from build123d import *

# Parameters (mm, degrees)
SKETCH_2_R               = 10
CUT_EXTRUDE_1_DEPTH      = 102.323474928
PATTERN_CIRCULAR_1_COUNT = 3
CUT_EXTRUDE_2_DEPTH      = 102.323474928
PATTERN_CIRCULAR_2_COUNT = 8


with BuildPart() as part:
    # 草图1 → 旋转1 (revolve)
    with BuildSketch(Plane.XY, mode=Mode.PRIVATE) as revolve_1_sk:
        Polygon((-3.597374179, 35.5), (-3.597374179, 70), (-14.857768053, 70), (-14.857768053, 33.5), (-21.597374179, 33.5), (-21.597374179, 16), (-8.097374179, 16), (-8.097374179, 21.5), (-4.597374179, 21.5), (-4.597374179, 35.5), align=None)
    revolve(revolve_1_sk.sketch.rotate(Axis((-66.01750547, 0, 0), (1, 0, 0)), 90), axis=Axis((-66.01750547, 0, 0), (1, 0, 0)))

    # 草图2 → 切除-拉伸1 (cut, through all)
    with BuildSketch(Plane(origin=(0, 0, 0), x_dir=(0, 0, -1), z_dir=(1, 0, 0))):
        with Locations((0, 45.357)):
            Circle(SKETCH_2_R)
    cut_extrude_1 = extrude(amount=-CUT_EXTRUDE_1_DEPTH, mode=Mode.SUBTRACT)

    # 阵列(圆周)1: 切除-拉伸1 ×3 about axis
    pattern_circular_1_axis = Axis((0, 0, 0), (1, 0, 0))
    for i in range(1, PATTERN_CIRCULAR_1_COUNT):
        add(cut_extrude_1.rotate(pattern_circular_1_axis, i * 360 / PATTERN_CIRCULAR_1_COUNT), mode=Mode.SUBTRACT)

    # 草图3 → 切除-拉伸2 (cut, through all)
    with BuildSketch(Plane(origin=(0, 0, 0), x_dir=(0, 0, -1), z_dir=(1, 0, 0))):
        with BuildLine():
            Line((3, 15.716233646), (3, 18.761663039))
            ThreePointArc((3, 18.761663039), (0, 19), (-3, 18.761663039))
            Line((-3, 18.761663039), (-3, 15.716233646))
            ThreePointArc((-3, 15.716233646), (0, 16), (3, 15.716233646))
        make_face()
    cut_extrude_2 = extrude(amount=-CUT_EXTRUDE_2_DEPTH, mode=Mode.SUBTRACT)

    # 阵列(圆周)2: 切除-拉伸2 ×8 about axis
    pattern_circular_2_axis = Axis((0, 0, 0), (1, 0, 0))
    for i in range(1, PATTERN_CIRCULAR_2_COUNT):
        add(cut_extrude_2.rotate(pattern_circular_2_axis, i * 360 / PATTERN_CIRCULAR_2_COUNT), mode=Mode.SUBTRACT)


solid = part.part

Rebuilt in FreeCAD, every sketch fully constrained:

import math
import FreeCAD as App
import Part
import Sketcher
from FreeCAD import Vector

doc = App.newDocument("Part")
body = doc.addObject("PartDesign::Body", "Body")

sketch1 = body.newObject("Sketcher::SketchObject", "Sketch")
sketch1.AttachmentSupport = (doc.getObject("XY_Plane"), [""])
sketch1.MapMode = "FlatFace"
sketch1.addGeometry(Part.LineSegment(Vector(-3.6, 35.5, 0), Vector(-3.6, 70, 0)), False)
sketch1.addGeometry(Part.LineSegment(Vector(-3.6, 70, 0), Vector(-14.9, 70, 0)), False)
sketch1.addGeometry(Part.LineSegment(Vector(-14.9, 70, 0), Vector(-14.9, 33.5, 0)), False)
sketch1.addGeometry(Part.LineSegment(Vector(-14.9, 33.5, 0), Vector(-21.6, 33.5, 0)), False)
sketch1.addGeometry(Part.LineSegment(Vector(-21.6, 33.5, 0), Vector(-21.6, 16, 0)), False)
sketch1.addGeometry(Part.LineSegment(Vector(-21.6, 16, 0), Vector(-8.1, 16, 0)), False)
sketch1.addGeometry(Part.LineSegment(Vector(-8.1, 16, 0), Vector(-8.1, 21.5, 0)), False)
sketch1.addGeometry(Part.LineSegment(Vector(-8.1, 21.5, 0), Vector(-4.6, 21.5, 0)), False)
sketch1.addGeometry(Part.LineSegment(Vector(-4.6, 21.5, 0), Vector(-4.6, 35.5, 0)), False)
sketch1.addGeometry(Part.LineSegment(Vector(-4.6, 35.5, 0), Vector(-3.6, 35.5, 0)), False)
sketch1.addConstraint(Sketcher.Constraint("Coincident", 0, 2, 1, 1))
sketch1.addConstraint(Sketcher.Constraint("Coincident", 1, 2, 2, 1))
sketch1.addConstraint(Sketcher.Constraint("Coincident", 2, 2, 3, 1))
sketch1.addConstraint(Sketcher.Constraint("Coincident", 3, 2, 4, 1))
sketch1.addConstraint(Sketcher.Constraint("Coincident", 4, 2, 5, 1))
sketch1.addConstraint(Sketcher.Constraint("Coincident", 5, 2, 6, 1))
sketch1.addConstraint(Sketcher.Constraint("Coincident", 6, 2, 7, 1))
sketch1.addConstraint(Sketcher.Constraint("Coincident", 7, 2, 8, 1))
sketch1.addConstraint(Sketcher.Constraint("Coincident", 8, 2, 9, 1))
sketch1.addConstraint(Sketcher.Constraint("Coincident", 9, 2, 0, 1))
sketch1.addConstraint(Sketcher.Constraint("Vertical", 0))
sketch1.addConstraint(Sketcher.Constraint("Horizontal", 1))
sketch1.addConstraint(Sketcher.Constraint("Vertical", 2))
sketch1.addConstraint(Sketcher.Constraint("Horizontal", 3))
sketch1.addConstraint(Sketcher.Constraint("Vertical", 4))
sketch1.addConstraint(Sketcher.Constraint("Horizontal", 5))
sketch1.addConstraint(Sketcher.Constraint("Vertical", 6))
sketch1.addConstraint(Sketcher.Constraint("Horizontal", 7))
sketch1.addConstraint(Sketcher.Constraint("Vertical", 8))
sketch1.addConstraint(Sketcher.Constraint("Horizontal", 9))
sketch1.addConstraint(Sketcher.Constraint("DistanceX", 9, 1, 9, 2, 1.0))
sketch1.addConstraint(Sketcher.Constraint("DistanceY", 8, 1, 8, 2, 14.0))
sketch1.addConstraint(Sketcher.Constraint("DistanceX", 5, 1, 5, 2, 13.5))
sketch1.addConstraint(Sketcher.Constraint("DistanceX", 7, 1, 7, 2, 3.5))
sketch1.addConstraint(Sketcher.Constraint("DistanceY", 0, 1, 0, 2, 34.5))
sketch1.addConstraint(Sketcher.Constraint("DistanceY", 2, 2, 2, 1, 36.5))
sketch1.addConstraint(Sketcher.Constraint("DistanceY", 4, 2, 4, 1, 17.5))
sketch1.addConstraint(Sketcher.Constraint("DistanceY", -1, 1, 0, 2, 70.0))
sketch1.addConstraint(Sketcher.Constraint("DistanceX", 1, 2, 1, 1, 11.260394))
sketch1.addConstraint(Sketcher.Constraint("DistanceX", 1, 2, -1, 1, 14.857768))
revolution = body.newObject("PartDesign::Revolution", "Revolution")
revolution.Profile = sketch1
revolution.ReferenceAxis = (sketch1, ["H_Axis"])
revolution.Angle = 360

sketch2 = body.newObject("Sketcher::SketchObject", "Sketch001")
sketch2.AttachmentSupport = (doc.getObject("YZ_Plane"), [""])
sketch2.MapMode = "FlatFace"
sketch2.addGeometry(Part.Circle(Vector(45, 0, 0), Vector(0, 0, 1), 10), False)
sketch2.addConstraint(Sketcher.Constraint("PointOnObject", 0, 3, -1))
sketch2.addConstraint(Sketcher.Constraint("Diameter", 0, 20.0))
sketch2.addConstraint(Sketcher.Constraint("DistanceX", -1, 1, 0, 3, 45.357))
pocket1 = body.newObject("PartDesign::Pocket", "Pocket")
pocket1.Profile = sketch2
pocket1.Type = "ThroughAll"
doc.recompute()

polarpattern = body.newObject("PartDesign::PolarPattern", "PolarPattern")
polarpattern.Originals = [pocket1]
polarpattern.Axis = (doc.getObject("X_Axis"), [""])
polarpattern.Angle = 360
polarpattern.Occurrences = 3
body.Tip = polarpattern

sketch3 = body.newObject("Sketcher::SketchObject", "Sketch002")
sketch3.AttachmentSupport = (doc.getObject("YZ_Plane"), [""])
sketch3.MapMode = "FlatFace"
sketch3.addGeometry(Part.LineSegment(Vector(15.7, -3, 0), Vector(18.8, -3, 0)), False)
sketch3.addGeometry(Part.ArcOfCircle(Part.Circle(Vector(0, 0, 0), Vector(0, 0, 1), 19), math.radians(-9.08), math.radians(9.08)), False)
sketch3.addGeometry(Part.LineSegment(Vector(18.8, 3, 0), Vector(15.7, 3, 0)), False)
sketch3.addGeometry(Part.ArcOfCircle(Part.Circle(Vector(0, 0, 0), Vector(0, 0, 1), 16), math.radians(-11), math.radians(11)), False)
sketch3.addConstraint(Sketcher.Constraint("Coincident", 0, 2, 1, 1))
sketch3.addConstraint(Sketcher.Constraint("Coincident", 1, 2, 2, 1))
sketch3.addConstraint(Sketcher.Constraint("Coincident", 2, 2, 3, 2))
sketch3.addConstraint(Sketcher.Constraint("Coincident", 3, 1, 0, 1))
sketch3.addConstraint(Sketcher.Constraint("Horizontal", 0))
sketch3.addConstraint(Sketcher.Constraint("Horizontal", 2))
sketch3.addConstraint(Sketcher.Constraint("Coincident", 1, 3, -1, 1))
sketch3.addConstraint(Sketcher.Constraint("Coincident", 3, 3, -1, 1))
sketch3.addConstraint(Sketcher.Constraint("Vertical", 0, 2, 1, 2))
sketch3.addConstraint(Sketcher.Constraint("Radius", 1, 19.0))
sketch3.addConstraint(Sketcher.Constraint("Radius", 3, 16.0))
sketch3.addConstraint(Sketcher.Constraint("DistanceY", 0, 2, -1, 1, 3.0))
pocket2 = body.newObject("PartDesign::Pocket", "Pocket001")
pocket2.Profile = sketch3
pocket2.Type = "ThroughAll"
doc.recompute()

polarpattern2 = body.newObject("PartDesign::PolarPattern", "PolarPattern001")
polarpattern2.Originals = [pocket2]
polarpattern2.Axis = (doc.getObject("X_Axis"), [""])
polarpattern2.Angle = 360
polarpattern2.Occurrences = 8
body.Tip = polarpattern2

doc.recompute()
